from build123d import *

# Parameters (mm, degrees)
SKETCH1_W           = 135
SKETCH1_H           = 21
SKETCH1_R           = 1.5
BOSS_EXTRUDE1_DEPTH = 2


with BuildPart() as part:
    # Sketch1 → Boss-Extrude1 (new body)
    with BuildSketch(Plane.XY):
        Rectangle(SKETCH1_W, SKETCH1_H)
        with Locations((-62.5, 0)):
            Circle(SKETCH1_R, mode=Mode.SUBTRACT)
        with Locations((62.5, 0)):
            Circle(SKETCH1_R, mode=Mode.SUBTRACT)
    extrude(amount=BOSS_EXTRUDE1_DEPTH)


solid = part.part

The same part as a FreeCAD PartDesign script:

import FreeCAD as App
import Part
import Sketcher
from FreeCAD import Vector
Q = App.Units.Quantity

doc = App.newDocument("Part")
params = doc.addObject("Spreadsheet::Sheet", "Params")
for row, (alias, value) in enumerate([
    ("sketch1_diameter", "3 mm"),
    ("sketch1_width", "135 mm"),
    ("sketch1_height", "21 mm"),
    ("pad1_length", "2 mm"),
], start=1):
    params.set(f"A{row}", alias)
    params.set(f"B{row}", "=" + value)
    params.setAlias(f"B{row}", alias)

body = doc.addObject("PartDesign::Body", "Body")

# Sketch on XY plane
sketch1 = body.newObject("Sketcher::SketchObject", "Sketch")
sketch1.AttachmentSupport = (doc.getObject("XY_Plane"), [""])
sketch1.MapMode = "FlatFace"
sketch1.addGeometry(Part.LineSegment(Vector(-67.5, 10.5, 0), Vector(-67.5, -10.5, 0)), False)
sketch1.addGeometry(Part.LineSegment(Vector(-67.5, -10.5, 0), Vector(67.5, -10.5, 0)), False)
sketch1.addGeometry(Part.LineSegment(Vector(67.5, -10.5, 0), Vector(67.5, 10.5, 0)), False)
sketch1.addGeometry(Part.LineSegment(Vector(67.5, 10.5, 0), Vector(-67.5, 10.5, 0)), False)
sketch1.addGeometry(Part.Circle(Vector(-62.5, 0, 0), Vector(0, 0, 1), 1.5), False)
sketch1.addGeometry(Part.Circle(Vector(62.5, 0, 0), Vector(0, 0, 1), 1.5), False)
sketch1.addConstraint(Sketcher.Constraint("Coincident", 0, 2, 1, 1))
sketch1.addConstraint(Sketcher.Constraint("Coincident", 1, 2, 2, 1))
sketch1.addConstraint(Sketcher.Constraint("Coincident", 2, 2, 3, 1))
sketch1.addConstraint(Sketcher.Constraint("Coincident", 3, 2, 0, 1))
sketch1.addConstraint(Sketcher.Constraint("Vertical", 0))
sketch1.addConstraint(Sketcher.Constraint("Horizontal", 1))
sketch1.addConstraint(Sketcher.Constraint("Vertical", 2))
sketch1.addConstraint(Sketcher.Constraint("Horizontal", 3))
sketch1.addConstraint(Sketcher.Constraint("Equal", 4, 5))
sketch1.addConstraint(Sketcher.Constraint("Symmetric", 4, 3, 5, 3, -1, 1))
sketch1.addConstraint(Sketcher.Constraint("Symmetric", 0, 2, 2, 2, -1, 1))
sketch1.addConstraint(Sketcher.Constraint("PointOnObject", 4, 3, -1))
sketch1.addConstraint(Sketcher.Constraint("Diameter", 4, Q("3 mm")))
sketch1.addConstraint(Sketcher.Constraint("DistanceX", 1, 1, 1, 2, Q("135 mm")))
sketch1.addConstraint(Sketcher.Constraint("DistanceY", 0, 2, 0, 1, Q("21 mm")))
sketch1.addConstraint(Sketcher.Constraint("DistanceX", 4, 3, 5, 3, Q("125 mm")))
sketch1.setExpression("Constraints[12]", "Params.sketch1_diameter")
sketch1.setExpression("Constraints[13]", "Params.sketch1_width")
sketch1.setExpression("Constraints[14]", "Params.sketch1_height")
pad1 = body.newObject("PartDesign::Pad", "Pad")
pad1.Profile = sketch1
pad1.setExpression("Length", "Params.pad1_length")

doc.recompute()
